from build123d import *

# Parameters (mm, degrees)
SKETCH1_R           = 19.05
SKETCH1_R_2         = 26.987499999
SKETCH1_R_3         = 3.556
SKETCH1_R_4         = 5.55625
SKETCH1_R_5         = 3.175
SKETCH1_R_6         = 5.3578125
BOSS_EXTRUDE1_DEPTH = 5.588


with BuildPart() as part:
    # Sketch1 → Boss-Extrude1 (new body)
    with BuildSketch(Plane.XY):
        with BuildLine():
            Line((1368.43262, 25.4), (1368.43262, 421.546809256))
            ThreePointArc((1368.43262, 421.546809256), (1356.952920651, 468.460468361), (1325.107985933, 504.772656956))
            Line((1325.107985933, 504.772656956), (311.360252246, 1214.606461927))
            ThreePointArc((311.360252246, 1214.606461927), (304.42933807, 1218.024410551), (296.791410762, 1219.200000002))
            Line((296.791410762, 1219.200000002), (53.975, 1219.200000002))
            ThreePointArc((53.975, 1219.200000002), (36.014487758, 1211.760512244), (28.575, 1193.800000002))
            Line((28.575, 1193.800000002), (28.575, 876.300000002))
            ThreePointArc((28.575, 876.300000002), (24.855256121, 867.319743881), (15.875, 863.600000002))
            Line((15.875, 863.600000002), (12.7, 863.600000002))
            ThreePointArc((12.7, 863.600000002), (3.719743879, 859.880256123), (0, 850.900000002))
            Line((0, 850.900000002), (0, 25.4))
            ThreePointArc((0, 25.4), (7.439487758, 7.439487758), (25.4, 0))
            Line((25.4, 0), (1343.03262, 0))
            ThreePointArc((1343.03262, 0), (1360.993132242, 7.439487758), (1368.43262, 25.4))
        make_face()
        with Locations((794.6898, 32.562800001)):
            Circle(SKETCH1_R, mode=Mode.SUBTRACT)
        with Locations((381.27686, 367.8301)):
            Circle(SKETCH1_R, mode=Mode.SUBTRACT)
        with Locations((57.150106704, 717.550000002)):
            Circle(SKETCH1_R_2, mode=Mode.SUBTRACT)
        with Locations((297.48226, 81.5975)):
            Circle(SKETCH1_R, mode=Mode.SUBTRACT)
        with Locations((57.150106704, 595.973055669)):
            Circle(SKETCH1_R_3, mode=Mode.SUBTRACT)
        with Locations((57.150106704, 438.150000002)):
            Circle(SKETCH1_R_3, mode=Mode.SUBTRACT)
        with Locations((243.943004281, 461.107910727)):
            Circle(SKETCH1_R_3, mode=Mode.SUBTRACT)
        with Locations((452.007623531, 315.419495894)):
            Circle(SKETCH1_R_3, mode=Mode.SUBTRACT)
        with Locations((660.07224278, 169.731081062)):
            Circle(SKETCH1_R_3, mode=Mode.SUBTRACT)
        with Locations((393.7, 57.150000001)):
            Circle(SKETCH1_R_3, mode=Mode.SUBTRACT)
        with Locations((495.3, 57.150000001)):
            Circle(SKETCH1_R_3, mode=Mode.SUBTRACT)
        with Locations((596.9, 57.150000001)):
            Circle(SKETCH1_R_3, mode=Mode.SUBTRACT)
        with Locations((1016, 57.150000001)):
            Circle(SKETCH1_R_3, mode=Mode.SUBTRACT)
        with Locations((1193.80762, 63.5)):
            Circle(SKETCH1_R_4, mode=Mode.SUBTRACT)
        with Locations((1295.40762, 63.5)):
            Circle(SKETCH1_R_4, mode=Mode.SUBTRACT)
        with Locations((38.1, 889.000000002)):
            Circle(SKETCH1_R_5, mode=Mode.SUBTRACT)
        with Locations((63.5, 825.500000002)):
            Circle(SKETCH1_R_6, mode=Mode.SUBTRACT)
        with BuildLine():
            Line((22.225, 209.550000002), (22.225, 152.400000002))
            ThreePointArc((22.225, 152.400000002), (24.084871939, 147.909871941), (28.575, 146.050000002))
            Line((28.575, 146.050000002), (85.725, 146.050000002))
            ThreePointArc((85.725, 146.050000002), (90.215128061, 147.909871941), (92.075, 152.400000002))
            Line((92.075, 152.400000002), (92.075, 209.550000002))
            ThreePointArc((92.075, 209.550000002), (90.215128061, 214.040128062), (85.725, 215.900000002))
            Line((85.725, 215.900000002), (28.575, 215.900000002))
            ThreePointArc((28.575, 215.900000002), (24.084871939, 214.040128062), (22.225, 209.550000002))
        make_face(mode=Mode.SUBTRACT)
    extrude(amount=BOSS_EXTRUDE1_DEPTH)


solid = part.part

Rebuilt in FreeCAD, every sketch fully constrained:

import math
import FreeCAD as App
import Part
import Sketcher

V = App.Vector
Q = App.Units.Quantity

doc = App.newDocument("Part")
body = doc.addObject("PartDesign::Body", "Body")

# Sketch on XY plane
sketch1 = body.newObject("Sketcher::SketchObject", "Sketch")
sketch1.AttachmentSupport = (doc.getObject("XY_Plane"), [""])
sketch1.MapMode = "FlatFace"
sketch1.addGeometry(Part.LineSegment(V(1368.4, 25.4, 0), V(1368.4, 421.5, 0)), False)
sketch1.addGeometry(Part.ArcOfCircle(Part.Circle(V(1266.8, 421.5, 0), V(0, 0, 1), 101.6), math.radians(0), math.radians(55)), False)
sketch1.addGeometry(Part.LineSegment(V(1325.1, 504.8, 0), V(311.4, 1214.6, 0)), False)
sketch1.addGeometry(Part.ArcOfCircle(Part.Circle(V(296.8, 1193.8, 0), V(0, 0, 1), 25.4), math.radians(55), math.radians(90)), False)
sketch1.addGeometry(Part.LineSegment(V(296.8, 1219.2, 0), V(54, 1219.2, 0)), False)
sketch1.addGeometry(Part.ArcOfCircle(Part.Circle(V(54, 1193.8, 0), V(0, 0, 1), 25.4), math.radians(90), math.radians(180)), False)
sketch1.addGeometry(Part.LineSegment(V(28.6, 1193.8, 0), V(28.6, 876.3, 0)), False)
sketch1.addGeometry(Part.ArcOfCircle(Part.Circle(V(15.9, 876.3, 0), V(0, 0, 1), 12.7), math.radians(-90), math.radians(0)), False)
sketch1.addGeometry(Part.LineSegment(V(15.9, 863.6, 0), V(12.7, 863.6, 0)), False)
sketch1.addGeometry(Part.ArcOfCircle(Part.Circle(V(12.7, 850.9, 0), V(0, 0, 1), 12.7), math.radians(90), math.radians(180)), False)
sketch1.addGeometry(Part.LineSegment(V(0, 850.9, 0), V(0, 25.4, 0)), False)
sketch1.addGeometry(Part.ArcOfCircle(Part.Circle(V(25.4, 25.4, 0), V(0, 0, 1), 25.4), math.radians(180), math.radians(270)), False)
sketch1.addGeometry(Part.LineSegment(V(25.4, 0, 0), V(1343, 0, 0)), False)
sketch1.addGeometry(Part.ArcOfCircle(Part.Circle(V(1343, 25.4, 0), V(0, 0, 1), 25.4), math.radians(-90), math.radians(0)), False)
sketch1.addGeometry(Part.Circle(V(297.5, 81.6, 0), V(0, 0, 1), 19.1), False)
sketch1.addGeometry(Part.LineSegment(V(22.2, 152.4, 0), V(22.2, 209.6, 0)), False)
sketch1.addGeometry(Part.ArcOfCircle(Part.Circle(V(28.6, 209.6, 0), V(0, 0, 1), 6.3), math.radians(90), math.radians(180)), False)
sketch1.addGeometry(Part.LineSegment(V(28.6, 215.9, 0), V(85.7, 215.9, 0)), False)
sketch1.addGeometry(Part.ArcOfCircle(Part.Circle(V(85.7, 209.6, 0), V(0, 0, 1), 6.3), math.radians(0), math.radians(90)), False)
sketch1.addGeometry(Part.LineSegment(V(92.1, 209.6, 0), V(92.1, 152.4, 0)), False)
sketch1.addGeometry(Part.ArcOfCircle(Part.Circle(V(85.7, 152.4, 0), V(0, 0, 1), 6.3), math.radians(-90), math.radians(0)), False)
sketch1.addGeometry(Part.LineSegment(V(85.7, 146.1, 0), V(28.6, 146.1, 0)), False)
sketch1.addGeometry(Part.ArcOfCircle(Part.Circle(V(28.6, 152.4, 0), V(0, 0, 1), 6.3), math.radians(180), math.radians(270)), False)
sketch1.addGeometry(Part.Circle(V(393.7, 57.2, 0), V(0, 0, 1), 3.6), False)
sketch1.addGeometry(Part.Circle(V(495.3, 57.2, 0), V(0, 0, 1), 3.6), False)
sketch1.addGeometry(Part.Circle(V(596.9, 57.2, 0), V(0, 0, 1), 3.6), False)
sketch1.addGeometry(Part.Circle(V(660.1, 169.7, 0), V(0, 0, 1), 3.6), False)
sketch1.addGeometry(Part.Circle(V(57.2, 438.2, 0), V(0, 0, 1), 3.6), False)
sketch1.addGeometry(Part.Circle(V(452, 315.4, 0), V(0, 0, 1), 3.6), False)
sketch1.addGeometry(Part.Circle(V(381.3, 367.8, 0), V(0, 0, 1), 19.1), False)
sketch1.addGeometry(Part.Circle(V(794.7, 32.6, 0), V(0, 0, 1), 19.1), False)
sketch1.addGeometry(Part.Circle(V(1016, 57.2, 0), V(0, 0, 1), 3.6), False)
sketch1.addGeometry(Part.Circle(V(1193.8, 63.5, 0), V(0, 0, 1), 5.6), False)
sketch1.addGeometry(Part.Circle(V(1295.4, 63.5, 0), V(0, 0, 1), 5.6), False)
sketch1.addGeometry(Part.Circle(V(243.9, 461.1, 0), V(0, 0, 1), 3.6), False)
sketch1.addGeometry(Part.Circle(V(57.2, 596, 0), V(0, 0, 1), 3.6), False)
sketch1.addGeometry(Part.Circle(V(57.2, 717.6, 0), V(0, 0, 1), 27), False)
sketch1.addGeometry(Part.Circle(V(63.5, 825.5, 0), V(0, 0, 1), 5.4), False)
sketch1.addGeometry(Part.Circle(V(38.1, 889, 0), V(0, 0, 1), 3.2), False)
sketch1.addConstraint(Sketcher.Constraint("Tangent", 0, 2, 1, 1))
sketch1.addConstraint(Sketcher.Constraint("Tangent", 1, 2, 2, 1))
sketch1.addConstraint(Sketcher.Constraint("Tangent", 2, 2, 3, 1))
sketch1.addConstraint(Sketcher.Constraint("Tangent", 3, 2, 4, 1))
sketch1.addConstraint(Sketcher.Constraint("Tangent", 4, 2, 5, 1))
sketch1.addConstraint(Sketcher.Constraint("Tangent", 5, 2, 6, 1))
sketch1.addConstraint(Sketcher.Constraint("Tangent", 6, 2, 7, 2))
sketch1.addConstraint(Sketcher.Constraint("Tangent", 7, 1, 8, 1))
sketch1.addConstraint(Sketcher.Constraint("Tangent", 8, 2, 9, 1))
sketch1.addConstraint(Sketcher.Constraint("Tangent", 9, 2, 10, 1))
sketch1.addConstraint(Sketcher.Constraint("Tangent", 10, 2, 11, 1))
sketch1.addConstraint(Sketcher.Constraint("Tangent", 11, 2, 12, 1))
sketch1.addConstraint(Sketcher.Constraint("Tangent", 12, 2, 13, 1))
sketch1.addConstraint(Sketcher.Constraint("Tangent", 13, 2, 0, 1))
sketch1.addConstraint(Sketcher.Constraint("Tangent", 15, 2, 16, 2))
sketch1.addConstraint(Sketcher.Constraint("Tangent", 16, 1, 17, 1))
sketch1.addConstraint(Sketcher.Constraint("Tangent", 17, 2, 18, 2))
sketch1.addConstraint(Sketcher.Constraint("Tangent", 18, 1, 19, 1))
sketch1.addConstraint(Sketcher.Constraint("Tangent", 19, 2, 20, 2))
sketch1.addConstraint(Sketcher.Constraint("Tangent", 20, 1, 21, 1))
sketch1.addConstraint(Sketcher.Constraint("Tangent", 21, 2, 22, 2))
sketch1.addConstraint(Sketcher.Constraint("Tangent", 22, 1, 15, 1))
sketch1.addConstraint(Sketcher.Constraint("Vertical", 0))
sketch1.addConstraint(Sketcher.Constraint("Horizontal", 4))
sketch1.addConstraint(Sketcher.Constraint("Vertical", 6))
sketch1.addConstraint(Sketcher.Constraint("Horizontal", 8))
sketch1.addConstraint(Sketcher.Constraint("Vertical", 10))
sketch1.addConstraint(Sketcher.Constraint("Horizontal", 12))
sketch1.addConstraint(Sketcher.Constraint("Vertical", 15))
sketch1.addConstraint(Sketcher.Constraint("Horizontal", 17))
sketch1.addConstraint(Sketcher.Constraint("Vertical", 19))
sketch1.addConstraint(Sketcher.Constraint("Horizontal", 21))
sketch1.addConstraint(Sketcher.Constraint("Equal", 3, 5))
sketch1.addConstraint(Sketcher.Constraint("Equal", 7, 9))
sketch1.addConstraint(Sketcher.Constraint("Equal", 5, 11))
sketch1.addConstraint(Sketcher.Constraint("Equal", 11, 13))
sketch1.addConstraint(Sketcher.Constraint("Equal", 16, 18))
sketch1.addConstraint(Sketcher.Constraint("Equal", 18, 20))
sketch1.addConstraint(Sketcher.Constraint("Equal", 20, 22))
sketch1.addConstraint(Sketcher.Constraint("Equal", 23, 24))
sketch1.addConstraint(Sketcher.Constraint("Equal", 24, 25))
sketch1.addConstraint(Sketcher.Constraint("Equal", 25, 26))
sketch1.addConstraint(Sketcher.Constraint("Equal", 26, 27))
sketch1.addConstraint(Sketcher.Constraint("Equal", 27, 28))
sketch1.addConstraint(Sketcher.Constraint("Equal", 14, 29))
sketch1.addConstraint(Sketcher.Constraint("Equal", 29, 30))
sketch1.addConstraint(Sketcher.Constraint("Equal", 28, 31))
sketch1.addConstraint(Sketcher.Constraint("Equal", 32, 33))
sketch1.addConstraint(Sketcher.Constraint("Equal", 31, 34))
sketch1.addConstraint(Sketcher.Constraint("Equal", 34, 35))
sketch1.addConstraint(Sketcher.Constraint("PointOnObject", 9, 2, -2))
sketch1.addConstraint(Sketcher.Constraint("PointOnObject", 11, 2, -1))
sketch1.addConstraint(Sketcher.Constraint("Horizontal", 23, 3, 24, 3))
sketch1.addConstraint(Sketcher.Constraint("Horizontal", 24, 3, 25, 3))
sketch1.addConstraint(Sketcher.Constraint("Horizontal", 25, 3, 31, 3))
sketch1.addConstraint(Sketcher.Constraint("Horizontal", 32, 3, 33, 3))
sketch1.addConstraint(Sketcher.Constraint("Vertical", 27, 3, 35, 3))
sketch1.addConstraint(Sketcher.Constraint("Vertical", 35, 3, 36, 3))
sketch1.addConstraint(Sketcher.Constraint("Vertical", 22, 3, 5, 2))
sketch1.addConstraint(Sketcher.Constraint("Equal", 21, 15))
sketch1.addConstraint(Sketcher.Constraint("Radius", 1, Q("4 in")))
sketch1.addConstraint(Sketcher.Constraint("Radius", 3, Q("1 in")))
sketch1.addConstraint(Sketcher.Constraint("Diameter", 14, Q("1.5 in")))
sketch1.addConstraint(Sketcher.Constraint("Radius", 7, Q("0.5 in")))
sketch1.addConstraint(Sketcher.Constraint("Diameter", 23, Q("0.28 in")))
sketch1.addConstraint(Sketcher.Constraint("Diameter", 38, Q("0.25 in")))
sketch1.addConstraint(Sketcher.Constraint("Radius", 16, Q("0.25 in")))
sketch1.addConstraint(Sketcher.Constraint("Diameter", 32, Q("0.4375 in")))
sketch1.addConstraint(Sketcher.Constraint("Diameter", 36, Q("2.125 in")))
sketch1.addConstraint(Sketcher.Constraint("Diameter", 37, Q("0.421875 in")))
sketch1.addConstraint(Sketcher.Constraint("DistanceY", 6, 2, 6, 1, Q("12.5 in")))
sketch1.addConstraint(Sketcher.Constraint("DistanceY", 10, 2, 10, 1, Q("32.5 in")))
sketch1.addConstraint(Sketcher.Constraint("DistanceY", -1, 1, 20, 3, Q("6 in")))
sketch1.addConstraint(Sketcher.Constraint("DistanceX", -1, 1, 31, 3, Q("40 in")))
sketch1.addConstraint(Sketcher.Constraint("DistanceY", -1, 1, 38, 3, Q("35 in")))
sketch1.addConstraint(Sketcher.Constraint("Angle", 2, Q("145 deg")))
sketch1.addConstraint(Sketcher.Constraint("DistanceY", 23, 3, 18, 3, Q("6 in")))
sketch1.addConstraint(Sketcher.Constraint("DistanceX", 23, 3, 24, 3, Q("4 in")))
sketch1.addConstraint(Sketcher.Constraint("DistanceX", 24, 3, 25, 3, Q("4 in")))
sketch1.addConstraint(Sketcher.Constraint("DistanceY", 18, 3, 27, 3, Q("9 in")))
sketch1.addConstraint(Sketcher.Constraint("DistanceX", 32, 3, 33, 3, Q("4 in")))
sketch1.addConstraint(Sketcher.Constraint("DistanceY", 27, 3, 36, 3, Q("11 in")))
sketch1.addConstraint(Sketcher.Constraint("DistanceX", 9, 3, 37, 3, Q("2 in")))
sketch1.addConstraint(Sketcher.Constraint("DistanceY", 37, 3, 9, 3, Q("1 in")))
sketch1.addConstraint(Sketcher.Constraint("DistanceX", 9, 3, 38, 3, Q("1 in")))
sketch1.addConstraint(Sketcher.Constraint("DistanceX", 17, 1, 17, 2, Q("2.25 in")))
sketch1.addConstraint(Sketcher.Constraint("DistanceX", -1, 1, 23, 3, Q("15.5 in")))
sketch1.addConstraint(Sketcher.Constraint("DistanceY", -1, 1, 32, 3, Q("2.5 in")))
sketch1.addConstraint(Sketcher.Constraint("DistanceX", 8, 2, 8, 1, Q("0.125 in")))
sketch1.addConstraint(Sketcher.Constraint("DistanceX", 12, 1, 12, 2, Q("51.8753 in")))
sketch1.addConstraint(Sketcher.Constraint("DistanceX", -1, 1, 30, 3, Q("31.287 in")))
sketch1.addConstraint(Sketcher.Constraint("DistanceY", -1, 1, 30, 3, Q("1.282 in")))
sketch1.addConstraint(Sketcher.Constraint("DistanceX", 14, 3, 29, 3, Q("3.299 in")))
sketch1.addConstraint(Sketcher.Constraint("DistanceY", 14, 3, 29, 3, Q("11.269 in")))
sketch1.addConstraint(Sketcher.Constraint("DistanceX", 32, 3, 13, 3, Q("5.875 in")))
sketch1.addConstraint(Sketcher.Constraint("DistanceX", -1, 1, 14, 3, Q("11.7119 in")))
sketch1.addConstraint(Sketcher.Constraint("DistanceY", -1, 1, 14, 3, Q("3.2125 in")))
sketch1.addConstraint(Sketcher.Constraint("DistanceX", 4, 2, 4, 1, Q("242.816411 mm")))
sketch1.addConstraint(Sketcher.Constraint("DistanceY", -1, 1, 26, 3, Q("169.731081 mm")))
sketch1.addConstraint(Sketcher.Constraint("DistanceY", -1, 1, 34, 3, Q("461.107911 mm")))
sketch1.addConstraint(Sketcher.Constraint("DistanceX", 28, 3, 26, 3, Q("208.064619 mm")))
sketch1.addConstraint(Sketcher.Constraint("DistanceX", 34, 3, 28, 3, Q("208.064619 mm")))
sketch1.addConstraint(Sketcher.Constraint("DistanceX", -1, 1, 26, 3, Q("660.072243 mm")))
sketch1.addConstraint(Sketcher.Constraint("DistanceX", -1, 1, 27, 3, Q("57.150107 mm")))
sketch1.addConstraint(Sketcher.Constraint("DistanceY", -1, 1, 28, 3, Q("315.419496 mm")))
sketch1.addConstraint(Sketcher.Constraint("DistanceY", -1, 1, 35, 3, Q("595.973056 mm")))
pad1 = body.newObject("PartDesign::Pad", "Pad")
pad1.Profile = sketch1
pad1.Length = Q("0.22 in")

doc.recompute()
